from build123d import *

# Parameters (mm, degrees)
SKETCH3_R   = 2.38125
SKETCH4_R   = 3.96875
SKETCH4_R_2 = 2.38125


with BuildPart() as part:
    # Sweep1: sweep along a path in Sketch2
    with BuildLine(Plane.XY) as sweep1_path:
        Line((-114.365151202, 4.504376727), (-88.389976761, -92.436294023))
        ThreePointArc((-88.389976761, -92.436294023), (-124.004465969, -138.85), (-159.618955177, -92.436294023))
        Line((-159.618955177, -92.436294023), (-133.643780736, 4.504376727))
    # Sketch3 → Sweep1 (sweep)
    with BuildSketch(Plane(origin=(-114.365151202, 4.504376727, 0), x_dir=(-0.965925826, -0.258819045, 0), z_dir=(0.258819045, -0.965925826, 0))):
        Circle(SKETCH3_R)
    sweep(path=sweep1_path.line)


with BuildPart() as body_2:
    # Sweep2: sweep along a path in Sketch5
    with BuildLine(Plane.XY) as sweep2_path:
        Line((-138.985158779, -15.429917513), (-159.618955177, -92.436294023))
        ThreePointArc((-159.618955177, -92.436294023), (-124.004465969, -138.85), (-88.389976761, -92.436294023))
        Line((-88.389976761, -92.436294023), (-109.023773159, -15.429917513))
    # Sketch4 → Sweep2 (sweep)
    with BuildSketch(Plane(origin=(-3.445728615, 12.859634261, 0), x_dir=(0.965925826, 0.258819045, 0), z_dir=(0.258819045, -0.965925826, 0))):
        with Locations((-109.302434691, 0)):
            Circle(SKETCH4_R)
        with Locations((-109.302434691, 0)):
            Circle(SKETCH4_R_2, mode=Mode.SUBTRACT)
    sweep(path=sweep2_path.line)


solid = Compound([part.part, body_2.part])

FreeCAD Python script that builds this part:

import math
import FreeCAD as App
import Part
import Sketcher
from FreeCAD import Vector
Q = App.Units.Quantity

doc = App.newDocument("Part")
body = doc.addObject("PartDesign::Body", "Body")

# Sketch on an angled plane
sketch1 = doc.addObject("Sketcher::SketchObject", "Sketch")
body.addObject(sketch1)
sketch1.Placement = App.Placement(Vector(-114.365151, 4.504377, 0), App.Rotation(Vector(-0.965925826, -0.258819045, 0), Vector(0, 0, -0.999999999), Vector(0.258819045, -0.965925826, 0), "ZXY"))
sketch1.addGeometry(Part.Circle(Vector(0, 0, 0), Vector(0, 0, 1), 2.4), False)
sketch1.addConstraint(Sketcher.Constraint("Coincident", 0, 3, -1, 1))
sketch1.addConstraint(Sketcher.Constraint("Diameter", 0, Q("0.1875 in")))

# Sketch on XY plane
sketch2 = doc.addObject("Sketcher::SketchObject", "Sketch001")
body.addObject(sketch2)
sketch2.AttachmentSupport = (doc.XY_Plane, [""])
sketch2.MapMode = "FlatFace"
sketch2.addGeometry(Part.LineSegment(Vector(-114, 5, 0), Vector(-88, -92, 0)), False)
sketch2.addGeometry(Part.ArcOfCircle(Part.Circle(Vector(-124, -102, 0), Vector(0, 0, 1), 37), math.radians(165), math.radians(375)), False)
sketch2.addGeometry(Part.LineSegment(Vector(-160, -92, 0), Vector(-134, 5, 0)), False)
sketch2.addConstraint(Sketcher.Constraint("Tangent", 0, 2, 1, 2))
sketch2.addConstraint(Sketcher.Constraint("Tangent", 1, 1, 2, 1))
sketch2.addConstraint(Sketcher.Constraint("Horizontal", 0, 2, 1, 1))
sketch2.addConstraint(Sketcher.Constraint("Horizontal", 0, 1, 2, 2))
sketch2.addConstraint(Sketcher.Constraint("Angle", 0, Q("-75 deg")))
sketch2.addConstraint(Sketcher.Constraint("Radius", 1, Q("36.870832 mm")))
sketch2.addConstraint(Sketcher.Constraint("DistanceX", 0, 1, -1, 1, Q("114.365151 mm")))
sketch2.addConstraint(Sketcher.Constraint("DistanceX", 2, 2, -1, 1, Q("133.643781 mm")))
sketch2.addConstraint(Sketcher.Constraint("DistanceY", 1, 3, -1, 1, Q("101.979168 mm")))
doc.recompute()

additivepipe = doc.addObject("PartDesign::AdditivePipe", "AdditivePipe")
body.addObject(additivepipe)
additivepipe.Profile = sketch1
additivepipe.Spine = (sketch2, ["Edge1", "Edge2", "Edge3"])
body2 = doc.addObject("PartDesign::Body", "Body001")

# Sketch on an angled plane
sketch3 = doc.addObject("Sketcher::SketchObject", "Sketch002")
body2.addObject(sketch3)
sketch3.Placement = App.Placement(Vector(-3.445729, 12.859634, 0), App.Rotation(Vector(0.965925826, 0.258819045, 0), Vector(0, 0, 0.999999999), Vector(0.258819045, -0.965925826, 0), "ZXY"))
sketch3.addGeometry(Part.Circle(Vector(-109.3, 0, 0), Vector(0, 0, 1), 4), False)
sketch3.addGeometry(Part.Circle(Vector(-109.3, 0, 0), Vector(0, 0, 1), 2.4), False)
sketch3.addConstraint(Sketcher.Constraint("Coincident", 1, 3, 0, 3))
sketch3.addConstraint(Sketcher.Constraint("PointOnObject", 0, 3, -1))
sketch3.addConstraint(Sketcher.Constraint("Diameter", 0, Q("0.3125 in")))
sketch3.addConstraint(Sketcher.Constraint("Diameter", 1, Q("0.1875 in")))
sketch3.addConstraint(Sketcher.Constraint("DistanceX", 0, 3, -1, 1, Q("109.302435 mm")))

# Sketch on XY plane
sketch4 = doc.addObject("Sketcher::SketchObject", "Sketch003")
body2.addObject(sketch4)
sketch4.AttachmentSupport = (doc.getObject("XY_Plane001"), [""])
sketch4.MapMode = "FlatFace"
sketch4.addGeometry(Part.LineSegment(Vector(-139, -15, 0), Vector(-160, -92, 0)), False)
sketch4.addGeometry(Part.ArcOfCircle(Part.Circle(Vector(-124, -102, 0), Vector(0, 0, 1), 37), math.radians(165), math.radians(375)), False)
sketch4.addGeometry(Part.LineSegment(Vector(-88, -92, 0), Vector(-109, -15, 0)), False)
sketch4.addConstraint(Sketcher.Constraint("Tangent", 0, 2, 1, 1))
sketch4.addConstraint(Sketcher.Constraint("Tangent", 1, 2, 2, 1))
sketch4.addConstraint(Sketcher.Constraint("Horizontal", 0, 2, 1, 2))
sketch4.addConstraint(Sketcher.Constraint("Horizontal", 0, 1, 2, 2))
sketch4.addConstraint(Sketcher.Constraint("Angle", 0, Q("-105 deg")))
sketch4.addConstraint(Sketcher.Constraint("Radius", 1, Q("36.870832 mm")))
sketch4.addConstraint(Sketcher.Constraint("DistanceX", 0, 1, -1, 1, Q("138.985159 mm")))
sketch4.addConstraint(Sketcher.Constraint("DistanceY", 1, 3, 0, 1, Q("86.54925 mm")))
sketch4.addConstraint(Sketcher.Constraint("DistanceY", 1, 3, -1, 1, Q("101.979168 mm")))
doc.recompute()

additivepipe2 = doc.addObject("PartDesign::AdditivePipe", "AdditivePipe001")
body2.addObject(additivepipe2)
additivepipe2.Profile = sketch3
additivepipe2.Spine = (sketch4, ["Edge1", "Edge2", "Edge3"])

doc.recompute()
